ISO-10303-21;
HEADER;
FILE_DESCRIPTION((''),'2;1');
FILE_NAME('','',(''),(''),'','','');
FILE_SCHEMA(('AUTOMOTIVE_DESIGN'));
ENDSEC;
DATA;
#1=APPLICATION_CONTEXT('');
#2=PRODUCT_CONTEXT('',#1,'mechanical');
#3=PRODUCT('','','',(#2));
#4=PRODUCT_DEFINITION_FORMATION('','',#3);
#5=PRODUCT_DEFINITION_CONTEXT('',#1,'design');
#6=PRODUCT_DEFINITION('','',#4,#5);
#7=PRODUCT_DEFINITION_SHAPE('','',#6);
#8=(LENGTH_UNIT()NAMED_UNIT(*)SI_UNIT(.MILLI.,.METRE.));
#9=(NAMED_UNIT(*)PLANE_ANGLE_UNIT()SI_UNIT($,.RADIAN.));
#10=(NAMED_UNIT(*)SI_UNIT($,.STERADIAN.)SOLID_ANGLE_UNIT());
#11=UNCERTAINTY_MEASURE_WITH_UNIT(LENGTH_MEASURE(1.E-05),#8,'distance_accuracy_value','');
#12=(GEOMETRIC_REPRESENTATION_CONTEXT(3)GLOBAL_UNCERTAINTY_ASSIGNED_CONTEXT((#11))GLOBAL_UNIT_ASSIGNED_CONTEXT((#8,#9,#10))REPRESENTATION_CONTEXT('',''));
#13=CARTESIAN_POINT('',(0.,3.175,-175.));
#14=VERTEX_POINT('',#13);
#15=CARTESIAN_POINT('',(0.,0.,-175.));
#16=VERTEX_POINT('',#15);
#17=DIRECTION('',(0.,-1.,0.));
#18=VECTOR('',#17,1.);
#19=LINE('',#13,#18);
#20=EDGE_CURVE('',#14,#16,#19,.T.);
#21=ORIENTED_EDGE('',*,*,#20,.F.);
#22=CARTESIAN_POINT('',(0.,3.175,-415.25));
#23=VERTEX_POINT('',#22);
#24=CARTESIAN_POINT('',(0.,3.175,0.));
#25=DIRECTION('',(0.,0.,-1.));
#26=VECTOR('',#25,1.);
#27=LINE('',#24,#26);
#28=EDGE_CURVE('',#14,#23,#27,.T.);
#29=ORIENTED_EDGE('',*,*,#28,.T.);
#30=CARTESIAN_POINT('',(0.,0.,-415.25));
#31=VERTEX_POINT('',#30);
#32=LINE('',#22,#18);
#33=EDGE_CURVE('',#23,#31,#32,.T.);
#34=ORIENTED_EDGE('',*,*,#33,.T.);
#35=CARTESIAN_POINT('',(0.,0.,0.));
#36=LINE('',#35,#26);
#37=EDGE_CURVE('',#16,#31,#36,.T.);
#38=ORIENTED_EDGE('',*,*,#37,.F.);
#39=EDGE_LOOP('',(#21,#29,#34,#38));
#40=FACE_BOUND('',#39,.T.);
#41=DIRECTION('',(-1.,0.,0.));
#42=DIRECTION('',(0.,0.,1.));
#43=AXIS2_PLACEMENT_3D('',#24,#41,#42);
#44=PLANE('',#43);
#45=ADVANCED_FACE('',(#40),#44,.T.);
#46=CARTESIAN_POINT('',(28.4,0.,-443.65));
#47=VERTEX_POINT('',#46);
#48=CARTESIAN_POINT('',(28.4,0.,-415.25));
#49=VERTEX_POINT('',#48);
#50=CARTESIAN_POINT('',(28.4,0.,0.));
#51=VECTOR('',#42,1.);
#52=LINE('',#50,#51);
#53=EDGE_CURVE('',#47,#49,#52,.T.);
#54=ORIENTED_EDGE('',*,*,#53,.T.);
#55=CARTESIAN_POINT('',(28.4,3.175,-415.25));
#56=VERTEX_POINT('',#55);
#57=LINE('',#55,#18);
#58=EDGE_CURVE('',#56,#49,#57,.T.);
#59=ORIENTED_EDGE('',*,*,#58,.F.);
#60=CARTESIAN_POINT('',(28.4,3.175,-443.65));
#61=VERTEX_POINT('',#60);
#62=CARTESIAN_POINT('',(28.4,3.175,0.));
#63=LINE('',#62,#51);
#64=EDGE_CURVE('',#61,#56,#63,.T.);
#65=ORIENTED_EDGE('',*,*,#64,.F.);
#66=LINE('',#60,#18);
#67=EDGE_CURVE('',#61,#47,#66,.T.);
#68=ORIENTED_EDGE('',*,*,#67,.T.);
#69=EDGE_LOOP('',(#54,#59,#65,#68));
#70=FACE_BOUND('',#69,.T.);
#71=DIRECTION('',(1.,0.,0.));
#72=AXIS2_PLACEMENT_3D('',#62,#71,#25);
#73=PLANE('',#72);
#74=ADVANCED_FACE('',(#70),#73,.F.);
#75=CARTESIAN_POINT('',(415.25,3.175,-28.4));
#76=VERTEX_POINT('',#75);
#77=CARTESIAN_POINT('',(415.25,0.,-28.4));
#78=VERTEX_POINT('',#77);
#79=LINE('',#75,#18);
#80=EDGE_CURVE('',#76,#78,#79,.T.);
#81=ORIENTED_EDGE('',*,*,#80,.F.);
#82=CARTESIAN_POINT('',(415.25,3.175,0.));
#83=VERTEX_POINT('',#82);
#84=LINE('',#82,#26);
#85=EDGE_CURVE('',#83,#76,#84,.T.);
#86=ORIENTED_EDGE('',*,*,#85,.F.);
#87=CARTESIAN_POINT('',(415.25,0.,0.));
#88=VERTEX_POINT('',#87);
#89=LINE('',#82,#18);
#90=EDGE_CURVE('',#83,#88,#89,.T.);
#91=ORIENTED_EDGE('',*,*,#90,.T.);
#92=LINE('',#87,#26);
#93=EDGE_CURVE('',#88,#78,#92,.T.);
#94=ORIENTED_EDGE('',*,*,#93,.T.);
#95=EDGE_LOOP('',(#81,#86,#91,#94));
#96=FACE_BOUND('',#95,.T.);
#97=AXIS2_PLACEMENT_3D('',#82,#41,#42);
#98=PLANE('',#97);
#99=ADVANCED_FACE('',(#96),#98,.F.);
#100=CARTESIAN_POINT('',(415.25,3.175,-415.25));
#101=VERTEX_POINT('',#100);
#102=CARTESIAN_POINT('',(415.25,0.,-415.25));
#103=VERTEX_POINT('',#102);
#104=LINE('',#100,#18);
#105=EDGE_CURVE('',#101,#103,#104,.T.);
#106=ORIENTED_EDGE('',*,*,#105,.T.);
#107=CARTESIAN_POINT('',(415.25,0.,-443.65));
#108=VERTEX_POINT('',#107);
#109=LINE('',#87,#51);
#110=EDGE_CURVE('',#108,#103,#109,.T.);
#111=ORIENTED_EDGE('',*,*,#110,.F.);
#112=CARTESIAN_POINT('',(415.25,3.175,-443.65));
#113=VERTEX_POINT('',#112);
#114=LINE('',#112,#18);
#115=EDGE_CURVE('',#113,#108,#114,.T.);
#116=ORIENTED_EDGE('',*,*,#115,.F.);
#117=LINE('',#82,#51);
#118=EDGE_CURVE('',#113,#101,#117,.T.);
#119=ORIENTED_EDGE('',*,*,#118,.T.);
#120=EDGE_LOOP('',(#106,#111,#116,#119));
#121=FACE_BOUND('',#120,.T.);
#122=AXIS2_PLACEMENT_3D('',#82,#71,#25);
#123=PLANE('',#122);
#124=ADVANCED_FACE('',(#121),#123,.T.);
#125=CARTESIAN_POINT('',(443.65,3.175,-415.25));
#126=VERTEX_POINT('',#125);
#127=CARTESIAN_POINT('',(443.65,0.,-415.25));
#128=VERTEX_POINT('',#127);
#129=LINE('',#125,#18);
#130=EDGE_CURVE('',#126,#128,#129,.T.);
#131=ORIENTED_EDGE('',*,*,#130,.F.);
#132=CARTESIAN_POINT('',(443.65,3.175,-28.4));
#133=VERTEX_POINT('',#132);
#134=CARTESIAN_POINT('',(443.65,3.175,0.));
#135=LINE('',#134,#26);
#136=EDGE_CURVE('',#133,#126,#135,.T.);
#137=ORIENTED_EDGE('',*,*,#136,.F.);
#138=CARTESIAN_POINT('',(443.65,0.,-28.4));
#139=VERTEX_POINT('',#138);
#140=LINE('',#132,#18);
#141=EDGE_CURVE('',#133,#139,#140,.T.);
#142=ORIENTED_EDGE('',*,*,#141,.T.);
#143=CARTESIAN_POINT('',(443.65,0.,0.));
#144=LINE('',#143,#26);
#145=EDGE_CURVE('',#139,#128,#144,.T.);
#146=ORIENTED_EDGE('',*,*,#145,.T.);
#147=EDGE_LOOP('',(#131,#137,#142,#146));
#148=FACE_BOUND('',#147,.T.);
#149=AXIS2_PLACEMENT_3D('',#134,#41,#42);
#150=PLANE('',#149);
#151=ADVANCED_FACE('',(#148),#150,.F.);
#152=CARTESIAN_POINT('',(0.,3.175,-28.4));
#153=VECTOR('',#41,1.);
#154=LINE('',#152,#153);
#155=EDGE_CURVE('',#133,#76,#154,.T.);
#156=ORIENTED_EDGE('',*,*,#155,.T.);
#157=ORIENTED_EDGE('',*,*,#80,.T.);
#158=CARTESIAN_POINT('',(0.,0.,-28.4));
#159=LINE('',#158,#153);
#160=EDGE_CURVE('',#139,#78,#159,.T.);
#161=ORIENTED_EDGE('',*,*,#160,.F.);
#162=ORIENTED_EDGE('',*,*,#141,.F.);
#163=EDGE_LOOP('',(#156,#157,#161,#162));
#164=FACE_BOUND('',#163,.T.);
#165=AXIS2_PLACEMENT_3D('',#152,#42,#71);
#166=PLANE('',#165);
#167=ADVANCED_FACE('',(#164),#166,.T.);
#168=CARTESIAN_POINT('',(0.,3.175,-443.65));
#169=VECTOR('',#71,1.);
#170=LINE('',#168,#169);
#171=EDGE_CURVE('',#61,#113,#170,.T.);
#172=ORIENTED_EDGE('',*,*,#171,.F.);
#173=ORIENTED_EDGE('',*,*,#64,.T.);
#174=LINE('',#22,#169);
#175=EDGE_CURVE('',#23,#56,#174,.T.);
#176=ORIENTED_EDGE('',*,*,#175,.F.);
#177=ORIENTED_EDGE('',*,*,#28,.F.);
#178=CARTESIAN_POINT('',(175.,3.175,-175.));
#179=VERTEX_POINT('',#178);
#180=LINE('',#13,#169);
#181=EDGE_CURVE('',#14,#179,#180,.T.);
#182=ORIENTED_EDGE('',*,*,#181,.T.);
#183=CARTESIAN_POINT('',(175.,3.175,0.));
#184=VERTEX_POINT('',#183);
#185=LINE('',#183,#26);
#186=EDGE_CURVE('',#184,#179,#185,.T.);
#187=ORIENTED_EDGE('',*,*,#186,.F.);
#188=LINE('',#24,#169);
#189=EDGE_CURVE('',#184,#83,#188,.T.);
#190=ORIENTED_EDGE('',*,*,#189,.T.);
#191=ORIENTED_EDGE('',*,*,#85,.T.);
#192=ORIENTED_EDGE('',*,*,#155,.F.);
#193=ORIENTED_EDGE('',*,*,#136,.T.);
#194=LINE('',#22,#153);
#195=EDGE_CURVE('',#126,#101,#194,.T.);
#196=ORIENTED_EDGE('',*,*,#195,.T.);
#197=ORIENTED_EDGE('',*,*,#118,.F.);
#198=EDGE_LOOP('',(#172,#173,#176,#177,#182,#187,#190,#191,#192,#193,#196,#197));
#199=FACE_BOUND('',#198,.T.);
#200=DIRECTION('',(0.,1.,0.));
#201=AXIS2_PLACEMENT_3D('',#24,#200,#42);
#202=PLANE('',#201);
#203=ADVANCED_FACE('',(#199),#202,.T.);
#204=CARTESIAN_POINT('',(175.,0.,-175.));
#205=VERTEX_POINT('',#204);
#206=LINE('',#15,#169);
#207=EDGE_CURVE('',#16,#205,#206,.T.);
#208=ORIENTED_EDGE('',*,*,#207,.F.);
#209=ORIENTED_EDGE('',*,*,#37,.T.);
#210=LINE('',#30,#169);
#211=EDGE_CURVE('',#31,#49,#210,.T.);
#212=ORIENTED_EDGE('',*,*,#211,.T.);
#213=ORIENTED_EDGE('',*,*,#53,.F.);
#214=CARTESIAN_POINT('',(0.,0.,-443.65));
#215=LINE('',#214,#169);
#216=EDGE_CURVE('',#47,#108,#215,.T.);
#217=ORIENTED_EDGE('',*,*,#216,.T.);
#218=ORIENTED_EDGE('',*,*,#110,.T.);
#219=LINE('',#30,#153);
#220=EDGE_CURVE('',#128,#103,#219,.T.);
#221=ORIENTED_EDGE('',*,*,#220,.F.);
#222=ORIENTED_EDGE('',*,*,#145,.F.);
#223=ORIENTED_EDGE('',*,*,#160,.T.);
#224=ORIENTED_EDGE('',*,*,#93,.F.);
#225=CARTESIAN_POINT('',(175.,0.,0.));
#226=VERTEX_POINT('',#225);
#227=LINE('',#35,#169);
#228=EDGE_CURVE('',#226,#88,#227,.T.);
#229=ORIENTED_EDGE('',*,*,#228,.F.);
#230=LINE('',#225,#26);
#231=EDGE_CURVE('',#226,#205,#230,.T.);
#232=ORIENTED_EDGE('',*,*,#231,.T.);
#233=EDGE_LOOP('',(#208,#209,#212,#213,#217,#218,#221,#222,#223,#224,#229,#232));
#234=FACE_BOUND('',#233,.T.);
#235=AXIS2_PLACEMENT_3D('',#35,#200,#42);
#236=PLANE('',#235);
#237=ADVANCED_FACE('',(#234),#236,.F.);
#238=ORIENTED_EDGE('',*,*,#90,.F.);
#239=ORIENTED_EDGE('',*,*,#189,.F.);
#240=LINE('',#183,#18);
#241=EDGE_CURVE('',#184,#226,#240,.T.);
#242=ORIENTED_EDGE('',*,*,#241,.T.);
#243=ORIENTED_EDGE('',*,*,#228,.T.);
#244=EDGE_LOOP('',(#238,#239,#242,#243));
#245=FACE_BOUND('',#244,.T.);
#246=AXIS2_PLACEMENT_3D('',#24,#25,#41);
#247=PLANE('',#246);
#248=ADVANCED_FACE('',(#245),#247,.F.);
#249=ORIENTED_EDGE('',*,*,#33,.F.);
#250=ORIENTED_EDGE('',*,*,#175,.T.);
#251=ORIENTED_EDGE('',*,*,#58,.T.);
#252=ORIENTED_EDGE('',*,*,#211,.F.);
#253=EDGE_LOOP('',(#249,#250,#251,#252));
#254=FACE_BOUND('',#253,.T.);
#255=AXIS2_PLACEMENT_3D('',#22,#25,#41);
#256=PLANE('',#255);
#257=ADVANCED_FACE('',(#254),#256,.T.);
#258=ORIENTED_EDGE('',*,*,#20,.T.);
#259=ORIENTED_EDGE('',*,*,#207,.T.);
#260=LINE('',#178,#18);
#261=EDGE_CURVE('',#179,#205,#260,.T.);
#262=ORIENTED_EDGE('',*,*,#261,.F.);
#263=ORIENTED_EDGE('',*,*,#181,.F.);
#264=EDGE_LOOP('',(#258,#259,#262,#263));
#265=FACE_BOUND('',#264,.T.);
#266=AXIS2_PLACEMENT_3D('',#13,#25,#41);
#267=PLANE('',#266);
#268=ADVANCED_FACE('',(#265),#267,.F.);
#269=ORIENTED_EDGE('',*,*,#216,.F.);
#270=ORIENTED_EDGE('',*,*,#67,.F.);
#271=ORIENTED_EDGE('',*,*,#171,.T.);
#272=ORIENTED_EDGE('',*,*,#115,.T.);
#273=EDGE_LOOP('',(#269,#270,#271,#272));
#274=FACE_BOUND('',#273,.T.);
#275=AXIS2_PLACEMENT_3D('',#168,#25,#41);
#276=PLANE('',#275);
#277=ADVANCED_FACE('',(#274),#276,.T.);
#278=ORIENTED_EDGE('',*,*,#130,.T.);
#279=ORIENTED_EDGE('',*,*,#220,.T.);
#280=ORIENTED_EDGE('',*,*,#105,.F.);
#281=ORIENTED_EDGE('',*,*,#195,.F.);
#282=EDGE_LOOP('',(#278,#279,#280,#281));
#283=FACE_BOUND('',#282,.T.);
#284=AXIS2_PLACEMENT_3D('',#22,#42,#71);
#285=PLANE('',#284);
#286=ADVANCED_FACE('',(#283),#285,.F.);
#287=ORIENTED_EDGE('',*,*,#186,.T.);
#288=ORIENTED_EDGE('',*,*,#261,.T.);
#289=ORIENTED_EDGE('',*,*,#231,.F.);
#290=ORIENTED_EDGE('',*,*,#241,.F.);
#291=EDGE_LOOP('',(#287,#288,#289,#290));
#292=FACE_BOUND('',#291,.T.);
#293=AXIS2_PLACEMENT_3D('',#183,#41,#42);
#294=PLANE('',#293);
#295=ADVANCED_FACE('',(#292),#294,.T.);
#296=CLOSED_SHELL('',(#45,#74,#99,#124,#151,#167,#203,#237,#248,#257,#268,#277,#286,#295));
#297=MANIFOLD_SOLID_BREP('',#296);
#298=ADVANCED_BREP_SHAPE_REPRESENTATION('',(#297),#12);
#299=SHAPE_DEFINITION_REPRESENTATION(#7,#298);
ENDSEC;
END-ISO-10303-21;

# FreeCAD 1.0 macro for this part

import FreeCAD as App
import Part
import Sketcher

V = App.Vector


def add_polygon(sketch, points):
    """Adds a closed chain of lines whose ends are joined by coincident constraints."""
    first, n = sketch.GeometryCount, len(points)
    for a, b in zip(points, points[1:] + points[:1]):
        sketch.addGeometry(Part.LineSegment(App.Vector(*a, 0), App.Vector(*b, 0)), False)
    for i in range(n):
        sketch.addConstraint(Sketcher.Constraint("Coincident", first + i, 2, first + (i + 1) % n, 1))

doc = App.newDocument("Part")
body = doc.addObject("PartDesign::Body", "Body")

sketch1 = body.newObject("Sketcher::SketchObject", "Sketch")
sketch1.AttachmentSupport = (doc.getObject("XZ_Plane"), [""])
sketch1.MapMode = "FlatFace"
add_polygon(sketch1, [(175, -175), (175, 0), (415.25, 0), (415.25, -28.4), (443.65, -28.4), (443.65, -415.25), (415.25, -415.25), (415.25, -443.65), (28.4, -443.65), (28.4, -415.25), (0, -415.25), (0, -175)])
sketch1.addConstraint(Sketcher.Constraint("Vertical", 0))
sketch1.addConstraint(Sketcher.Constraint("Horizontal", 1))
sketch1.addConstraint(Sketcher.Constraint("Vertical", 2))
sketch1.addConstraint(Sketcher.Constraint("Horizontal", 3))
sketch1.addConstraint(Sketcher.Constraint("Vertical", 4))
sketch1.addConstraint(Sketcher.Constraint("Horizontal", 5))
sketch1.addConstraint(Sketcher.Constraint("Vertical", 6))
sketch1.addConstraint(Sketcher.Constraint("Horizontal", 7))
sketch1.addConstraint(Sketcher.Constraint("Vertical", 8))
sketch1.addConstraint(Sketcher.Constraint("Horizontal", 9))
sketch1.addConstraint(Sketcher.Constraint("Vertical", 10))
sketch1.addConstraint(Sketcher.Constraint("Horizontal", 11))
sketch1.addConstraint(Sketcher.Constraint("PointOnObject", 0, 2, -1))
sketch1.addConstraint(Sketcher.Constraint("PointOnObject", 9, 2, -2))
sketch1.addConstraint(Sketcher.Constraint("Horizontal", 5, 2, 8, 2))
sketch1.addConstraint(Sketcher.Constraint("Vertical", 2, 2, 5, 2))
sketch1.addConstraint(Sketcher.Constraint("Equal", 5, 9))
sketch1.addConstraint(Sketcher.Constraint("Equal", 11, 0))
sketch1.addConstraint(Sketcher.Constraint("Equal", 9, 2))
sketch1.addConstraint(Sketcher.Constraint("Equal", 7, 4))
sketch1.addConstraint(Sketcher.Constraint("Equal", 2, 6))
sketch1.addConstraint(Sketcher.Constraint("DistanceX", 11, 1, 11, 2, 175.0))
sketch1.addConstraint(Sketcher.Constraint("DistanceX", 3, 1, 3, 2, 28.4))
sketch1.addConstraint(Sketcher.Constraint("DistanceX", 1, 1, 1, 2, 240.25))
pad1 = body.newObject("PartDesign::Pad", "Pad")
pad1.Profile = sketch1
pad1.Length = 3.175
pad1.Reversed = True

doc.recompute()
